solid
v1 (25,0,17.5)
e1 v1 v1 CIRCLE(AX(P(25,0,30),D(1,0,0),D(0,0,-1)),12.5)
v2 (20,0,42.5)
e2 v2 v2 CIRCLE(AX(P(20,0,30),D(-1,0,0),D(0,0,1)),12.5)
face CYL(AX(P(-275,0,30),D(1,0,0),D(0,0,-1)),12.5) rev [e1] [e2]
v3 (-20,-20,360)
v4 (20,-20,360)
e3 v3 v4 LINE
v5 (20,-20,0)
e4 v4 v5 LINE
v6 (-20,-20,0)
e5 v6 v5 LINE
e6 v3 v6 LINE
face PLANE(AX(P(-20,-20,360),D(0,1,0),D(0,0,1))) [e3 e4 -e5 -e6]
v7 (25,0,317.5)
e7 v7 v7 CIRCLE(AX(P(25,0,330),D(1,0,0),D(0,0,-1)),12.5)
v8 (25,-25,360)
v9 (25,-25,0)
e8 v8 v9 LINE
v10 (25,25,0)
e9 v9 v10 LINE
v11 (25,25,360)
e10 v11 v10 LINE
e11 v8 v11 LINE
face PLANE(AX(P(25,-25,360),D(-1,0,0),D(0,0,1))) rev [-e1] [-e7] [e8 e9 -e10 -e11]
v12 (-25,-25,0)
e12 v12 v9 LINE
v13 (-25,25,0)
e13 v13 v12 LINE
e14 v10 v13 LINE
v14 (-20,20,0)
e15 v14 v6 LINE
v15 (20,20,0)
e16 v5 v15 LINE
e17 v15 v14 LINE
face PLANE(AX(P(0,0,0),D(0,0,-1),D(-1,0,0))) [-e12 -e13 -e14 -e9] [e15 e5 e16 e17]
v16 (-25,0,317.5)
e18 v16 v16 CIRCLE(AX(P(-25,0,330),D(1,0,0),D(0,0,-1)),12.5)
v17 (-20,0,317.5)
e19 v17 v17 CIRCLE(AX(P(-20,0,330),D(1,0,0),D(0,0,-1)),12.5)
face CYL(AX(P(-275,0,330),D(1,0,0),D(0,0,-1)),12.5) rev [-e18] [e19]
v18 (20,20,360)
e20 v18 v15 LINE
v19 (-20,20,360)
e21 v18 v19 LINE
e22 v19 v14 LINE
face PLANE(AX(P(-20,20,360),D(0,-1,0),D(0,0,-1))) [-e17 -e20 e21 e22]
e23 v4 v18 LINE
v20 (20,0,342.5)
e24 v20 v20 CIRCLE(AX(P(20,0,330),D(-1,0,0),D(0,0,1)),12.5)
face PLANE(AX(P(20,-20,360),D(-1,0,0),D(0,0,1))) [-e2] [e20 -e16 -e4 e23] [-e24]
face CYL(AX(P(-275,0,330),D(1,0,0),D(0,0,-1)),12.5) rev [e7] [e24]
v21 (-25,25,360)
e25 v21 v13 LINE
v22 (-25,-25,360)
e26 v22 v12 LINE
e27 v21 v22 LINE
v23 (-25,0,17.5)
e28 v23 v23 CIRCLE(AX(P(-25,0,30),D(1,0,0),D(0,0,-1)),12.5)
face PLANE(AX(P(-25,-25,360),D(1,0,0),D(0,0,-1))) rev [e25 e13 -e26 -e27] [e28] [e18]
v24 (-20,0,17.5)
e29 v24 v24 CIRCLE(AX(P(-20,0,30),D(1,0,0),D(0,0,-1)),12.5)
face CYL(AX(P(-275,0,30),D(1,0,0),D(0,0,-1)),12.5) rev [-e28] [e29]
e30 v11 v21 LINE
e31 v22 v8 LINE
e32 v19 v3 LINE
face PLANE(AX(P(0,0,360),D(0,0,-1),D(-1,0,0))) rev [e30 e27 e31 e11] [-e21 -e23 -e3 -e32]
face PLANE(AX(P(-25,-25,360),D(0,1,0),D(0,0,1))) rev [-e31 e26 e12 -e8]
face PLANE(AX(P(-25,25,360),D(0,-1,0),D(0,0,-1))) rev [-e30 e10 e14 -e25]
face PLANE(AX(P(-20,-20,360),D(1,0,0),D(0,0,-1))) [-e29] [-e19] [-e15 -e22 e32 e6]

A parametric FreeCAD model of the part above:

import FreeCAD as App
import Part
import Sketcher

V = App.Vector


def add_polygon(sketch, points):
    """Adds a closed chain of lines whose ends are joined by coincident constraints."""
    first, n = sketch.GeometryCount, len(points)
    for a, b in zip(points, points[1:] + points[:1]):
        sketch.addGeometry(Part.LineSegment(App.Vector(*a, 0), App.Vector(*b, 0)), False)
    for i in range(n):
        sketch.addConstraint(Sketcher.Constraint("Coincident", first + i, 2, first + (i + 1) % n, 1))

doc = App.newDocument("Part")
params = doc.addObject("Spreadsheet::Sheet", "Params")
for row, (alias, value) in enumerate([
    ("sketch1_width", "50 mm"),
    ("sketch1_width2", "40 mm"),
    ("pad1_length", "360 mm"),
    ("sketch2_diameter", "25 mm"),
    ("pocket1_length", "300 mm"),
], start=1):
    params.set(f"A{row}", alias)
    params.set(f"B{row}", "=" + value)
    params.setAlias(f"B{row}", alias)

body = doc.addObject("PartDesign::Body", "Body")

# Sketch on XY plane
sketch1 = body.newObject("Sketcher::SketchObject", "Sketch")
sketch1.AttachmentSupport = (doc.getObject("XY_Plane"), [""])
sketch1.MapMode = "FlatFace"
add_polygon(sketch1, [(-25, 25), (-25, -25), (25, -25), (25, 25)])  # lines 0-3
add_polygon(sketch1, [(20, -20), (-20, -20), (-20, 20), (20, 20)])  # lines 4-7
sketch1.addConstraint(Sketcher.Constraint("Vertical", 0))
sketch1.addConstraint(Sketcher.Constraint("Horizontal", 1))
sketch1.addConstraint(Sketcher.Constraint("Vertical", 2))
sketch1.addConstraint(Sketcher.Constraint("Horizontal", 3))
sketch1.addConstraint(Sketcher.Constraint("Horizontal", 4))
sketch1.addConstraint(Sketcher.Constraint("Vertical", 5))
sketch1.addConstraint(Sketcher.Constraint("Horizontal", 6))
sketch1.addConstraint(Sketcher.Constraint("Vertical", 7))
sketch1.addConstraint(Sketcher.Constraint("Symmetric", 0, 2, 2, 2, -1, 1))
sketch1.addConstraint(Sketcher.Constraint("Symmetric", 4, 2, 6, 2, -1, 1))
sketch1.addConstraint(Sketcher.Constraint("Equal", 3, 0))
sketch1.addConstraint(Sketcher.Constraint("Equal", 6, 5))
sketch1.addConstraint(Sketcher.Constraint("DistanceX", 1, 1, 1, 2, 50.0))
sketch1.addConstraint(Sketcher.Constraint("DistanceX", 4, 2, 4, 1, 40.0))
sketch1.setExpression("Constraints[20]", "Params.sketch1_width")
sketch1.setExpression("Constraints[21]", "Params.sketch1_width2")
pad1 = body.newObject("PartDesign::Pad", "Pad")
pad1.Profile = sketch1
pad1.setExpression("Length", "Params.pad1_length")

# Sketch on YZ plane
sketch2 = body.newObject("Sketcher::SketchObject", "Sketch001")
sketch2.AttachmentSupport = (doc.getObject("YZ_Plane"), [""])
sketch2.MapMode = "FlatFace"
sketch2.AttachmentOffset = App.Placement(V(0, 0, 25), App.Rotation())
sketch2.addGeometry(Part.Circle(V(0, 330, 0), V(0, 0, 1), 12), False)
sketch2.addGeometry(Part.Circle(V(0, 30, 0), V(0, 0, 1), 12), False)
sketch2.addConstraint(Sketcher.Constraint("Equal", 0, 1))
sketch2.addConstraint(Sketcher.Constraint("PointOnObject", 0, 3, -2))
sketch2.addConstraint(Sketcher.Constraint("PointOnObject", 1, 3, -2))
sketch2.addConstraint(Sketcher.Constraint("Diameter", 0, 25.0))
sketch2.addConstraint(Sketcher.Constraint("DistanceY", -1, 1, 0, 3, 330.0))
sketch2.addConstraint(Sketcher.Constraint("DistanceY", -1, 1, 1, 3, 30.0))
sketch2.setExpression("Constraints[3]", "Params.sketch2_diameter")
pocket1 = body.newObject("PartDesign::Pocket", "Pocket")
pocket1.Profile = sketch2
pocket1.setExpression("Length", "Params.pocket1_length")

doc.recompute()
